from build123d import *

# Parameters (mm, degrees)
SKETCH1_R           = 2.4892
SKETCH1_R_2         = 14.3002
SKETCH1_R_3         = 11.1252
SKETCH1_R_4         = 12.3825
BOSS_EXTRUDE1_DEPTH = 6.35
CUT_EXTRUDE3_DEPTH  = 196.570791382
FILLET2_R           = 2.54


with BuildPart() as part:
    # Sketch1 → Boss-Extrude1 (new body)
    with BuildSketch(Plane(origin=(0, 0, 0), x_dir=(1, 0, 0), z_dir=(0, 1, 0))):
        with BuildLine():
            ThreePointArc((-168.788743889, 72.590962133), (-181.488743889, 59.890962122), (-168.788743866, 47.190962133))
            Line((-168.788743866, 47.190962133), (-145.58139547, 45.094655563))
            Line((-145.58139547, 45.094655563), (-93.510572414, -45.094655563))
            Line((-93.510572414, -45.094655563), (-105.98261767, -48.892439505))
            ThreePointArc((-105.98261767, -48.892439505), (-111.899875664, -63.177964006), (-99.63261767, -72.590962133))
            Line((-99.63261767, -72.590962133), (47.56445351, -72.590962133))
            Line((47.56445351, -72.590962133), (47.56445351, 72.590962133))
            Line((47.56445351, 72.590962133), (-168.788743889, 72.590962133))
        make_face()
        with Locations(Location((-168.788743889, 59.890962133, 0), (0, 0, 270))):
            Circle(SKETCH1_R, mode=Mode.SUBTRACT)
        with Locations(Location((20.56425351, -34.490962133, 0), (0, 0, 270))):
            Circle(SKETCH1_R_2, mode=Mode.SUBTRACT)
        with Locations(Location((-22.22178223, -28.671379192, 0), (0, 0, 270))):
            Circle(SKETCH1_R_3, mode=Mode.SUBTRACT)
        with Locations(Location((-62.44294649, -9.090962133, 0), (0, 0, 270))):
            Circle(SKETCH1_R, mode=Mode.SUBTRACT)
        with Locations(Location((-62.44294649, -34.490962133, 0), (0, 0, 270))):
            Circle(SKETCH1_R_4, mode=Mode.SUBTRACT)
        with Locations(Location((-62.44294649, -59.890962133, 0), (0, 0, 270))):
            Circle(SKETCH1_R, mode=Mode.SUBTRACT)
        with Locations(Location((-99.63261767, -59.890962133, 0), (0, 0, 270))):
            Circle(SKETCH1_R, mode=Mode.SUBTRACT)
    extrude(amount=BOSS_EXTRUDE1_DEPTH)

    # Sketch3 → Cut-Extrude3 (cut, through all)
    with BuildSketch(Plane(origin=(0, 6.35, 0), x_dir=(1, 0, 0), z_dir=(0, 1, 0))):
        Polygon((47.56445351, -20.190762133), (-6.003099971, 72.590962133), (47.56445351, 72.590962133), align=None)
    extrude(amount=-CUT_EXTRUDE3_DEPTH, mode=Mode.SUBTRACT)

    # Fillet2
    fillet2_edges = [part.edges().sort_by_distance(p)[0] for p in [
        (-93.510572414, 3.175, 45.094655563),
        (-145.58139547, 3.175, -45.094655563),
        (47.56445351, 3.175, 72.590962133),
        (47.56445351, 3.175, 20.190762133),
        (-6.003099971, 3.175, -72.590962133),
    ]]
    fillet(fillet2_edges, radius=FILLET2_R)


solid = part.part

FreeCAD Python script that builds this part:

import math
import FreeCAD as App
import Part
import Sketcher
Q = App.Units.Quantity


def edges_at(feature, points):
    """Names of the edges that pass closest to the given points."""
    edges = feature.Shape.Edges
    near = lambda p: min(range(len(edges)), key=lambda i: edges[i].distToShape(Part.Vertex(*p))[0])
    return sorted({f"Edge{near(p) + 1}" for p in points})


def add_polygon(sketch, points):
    """Adds a closed chain of lines whose ends are joined by coincident constraints."""
    first, n = sketch.GeometryCount, len(points)
    for a, b in zip(points, points[1:] + points[:1]):
        sketch.addGeometry(Part.LineSegment(App.Vector(*a, 0), App.Vector(*b, 0)), False)
    for i in range(n):
        sketch.addConstraint(Sketcher.Constraint("Coincident", first + i, 2, first + (i + 1) % n, 1))

doc = App.newDocument("Part")
body = doc.addObject("PartDesign::Body", "Body")

sketch1 = body.newObject("Sketcher::SketchObject", "Sketch")
sketch1.AttachmentSupport = (doc.getObject("XZ_Plane"), [""])
sketch1.MapMode = "FlatFace"
sketch1.addGeometry([
    Part.ArcOfCircle(Part.Circle(App.Vector(-168.788744, -59.890962, 0), App.Vector(0, 0, 1), 12.7), math.radians(90), math.radians(270)),
    Part.LineSegment(App.Vector(-168.788744, -47.190962, 0), App.Vector(-145.581395, -45.094656, 0)),
    Part.LineSegment(App.Vector(-145.581395, -45.094656, 0), App.Vector(-93.510572, 45.094656, 0)),
    Part.LineSegment(App.Vector(-93.510572, 45.094656, 0), App.Vector(-105.982618, 48.89244, 0)),
    Part.ArcOfCircle(Part.Circle(App.Vector(-99.632618, 59.890962, 0), App.Vector(0, 0, 1), 12.7), math.radians(90), math.radians(240)),
    Part.LineSegment(App.Vector(-99.632618, 72.590962, 0), App.Vector(47.564454, 72.590962, 0)),
    Part.LineSegment(App.Vector(47.564454, 72.590962, 0), App.Vector(47.564454, -72.590962, 0)),
    Part.LineSegment(App.Vector(47.564454, -72.590962, 0), App.Vector(-168.788744, -72.590962, 0)),
    Part.Circle(App.Vector(-99.632618, 59.890962, 0), App.Vector(0, 0, 1), 2.4892),
    Part.Circle(App.Vector(-62.442946, 59.890962, 0), App.Vector(0, 0, 1), 2.4892),
    Part.Circle(App.Vector(-62.442946, 34.490962, 0), App.Vector(0, 0, 1), 12.3825),
    Part.Circle(App.Vector(20.564254, 34.490962, 0), App.Vector(0, 0, 1), 14.3002),
    Part.Circle(App.Vector(-22.221782, 28.671379, 0), App.Vector(0, 0, 1), 11.1252),
    Part.Circle(App.Vector(-62.442946, 9.090962, 0), App.Vector(0, 0, 1), 2.4892),
    Part.Circle(App.Vector(-168.788744, -59.890962, 0), App.Vector(0, 0, 1), 2.4892),
], False)
sketch1.addConstraint([
    Sketcher.Constraint("Coincident", 0, 1, 1, 1),
    Sketcher.Constraint("Coincident", 1, 2, 2, 1),
    Sketcher.Constraint("Coincident", 2, 2, 3, 1),
    Sketcher.Constraint("Coincident", 3, 2, 4, 2),
    Sketcher.Constraint("Tangent", 4, 1, 5, 1),
    Sketcher.Constraint("Coincident", 5, 2, 6, 1),
    Sketcher.Constraint("Coincident", 6, 2, 7, 1),
    Sketcher.Constraint("Tangent", 7, 2, 0, 2),
    Sketcher.Constraint("Horizontal", 5),
    Sketcher.Constraint("Vertical", 6),
    Sketcher.Constraint("Horizontal", 7),
    Sketcher.Constraint("Coincident", 8, 3, 4, 3),
    Sketcher.Constraint("Coincident", 14, 3, 0, 3),
    Sketcher.Constraint("Equal", 0, 4),
    Sketcher.Constraint("Equal", 8, 9),
    Sketcher.Constraint("Equal", 9, 13),
    Sketcher.Constraint("Equal", 13, 14),
    Sketcher.Constraint("Horizontal", 8, 3, 9, 3),
    Sketcher.Constraint("Horizontal", 10, 3, 11, 3),
    Sketcher.Constraint("Vertical", 9, 3, 10, 3),
    Sketcher.Constraint("Vertical", 10, 3, 13, 3),
    Sketcher.Constraint("Vertical", 14, 3, 0, 1),
    Sketcher.Constraint("Radius", 0, Q("0.5 in")),
    Sketcher.Constraint("Diameter", 8, Q("0.196 in")),
    Sketcher.Constraint("Diameter", 10, Q("0.975 in")),
    Sketcher.Constraint("Diameter", 11, Q("1.126 in")),
    Sketcher.Constraint("Diameter", 12, Q("0.876 in")),
    Sketcher.Constraint("Angle", 2, Q("60 deg")),
    Sketcher.Constraint("DistanceY", 10, 3, 9, 3, Q("1 in")),
    Sketcher.Constraint("DistanceY", 13, 3, 10, 3, Q("1 in")),
    Sketcher.Constraint("DistanceX", 3, 2, 4, 3, Q("0.25 in")),
    Sketcher.Constraint("DistanceX", 10, 3, 11, 3, Q("3.268 in")),
    Sketcher.Constraint("DistanceX", 11, 3, 5, 2, Q("1.063 in")),
    Sketcher.Constraint("DistanceX", 5, 1, 5, 2, 147.197071),
    Sketcher.Constraint("Distance", 3, 13.037449),
    Sketcher.Constraint("DistanceX", 7, 2, 7, 1, 216.353197),
    Sketcher.Constraint("DistanceY", 6, 2, 6, 1, 145.181924),
    Sketcher.Constraint("DistanceY", -1, 1, 12, 3, 28.671379),
    Sketcher.Constraint("DistanceY", -1, 1, 3, 2, 48.89244),
    Sketcher.Constraint("DistanceX", 0, 1, 1, 2, 23.207348),
    Sketcher.Constraint("Distance", 1, 23.301835),
    Sketcher.Constraint("DistanceX", 0, 3, -1, 1, 168.788744),
    Sketcher.Constraint("DistanceX", 12, 3, -1, 1, 22.221782),
])
pad1 = body.newObject("PartDesign::Pad", "Pad")
pad1.Profile = sketch1
pad1.Length = Q("0.25 in")
pad1.Reversed = True

sketch2 = body.newObject("Sketcher::SketchObject", "Sketch001")
sketch2.AttachmentSupport = (doc.getObject("XZ_Plane"), [""])
sketch2.MapMode = "FlatFace"
sketch2.AttachmentOffset = App.Placement(App.Vector(0, 0, -0.25 * 25.4), App.Rotation())
add_polygon(sketch2, [(-6.0031, -72.590962), (47.564454, 20.190762), (47.564454, -72.590962)])
sketch2.addConstraint([
    Sketcher.Constraint("Vertical", 1),
    Sketcher.Constraint("Horizontal", 2),
    Sketcher.Constraint("Angle", 0, Q("60 deg")),
    Sketcher.Constraint("DistanceX", 2, 2, -1, 1, 6.0031),
    Sketcher.Constraint("DistanceX", 2, 2, 2, 1, 53.567553),
    Sketcher.Constraint("DistanceY", -1, 1, 0, 2, 20.190762),
])
pocket1 = body.newObject("PartDesign::Pocket", "Pocket")
pocket1.Profile = sketch2
pocket1.Type = "ThroughAll"
pocket1.Reversed = True
doc.recompute()

fillet = body.newObject("PartDesign::Fillet", "Fillet")
fillet.Base = (pocket1, edges_at(pocket1, [
    (-93.511, 3.175, 45.095),
    (-145.581, 3.175, -45.095),
    (47.564, 3.175, 72.591),
    (47.564, 3.175, 20.191),
    (-6.003, 3.175, -72.591),
]))
fillet.Radius = Q("0.1 in")

doc.recompute()
